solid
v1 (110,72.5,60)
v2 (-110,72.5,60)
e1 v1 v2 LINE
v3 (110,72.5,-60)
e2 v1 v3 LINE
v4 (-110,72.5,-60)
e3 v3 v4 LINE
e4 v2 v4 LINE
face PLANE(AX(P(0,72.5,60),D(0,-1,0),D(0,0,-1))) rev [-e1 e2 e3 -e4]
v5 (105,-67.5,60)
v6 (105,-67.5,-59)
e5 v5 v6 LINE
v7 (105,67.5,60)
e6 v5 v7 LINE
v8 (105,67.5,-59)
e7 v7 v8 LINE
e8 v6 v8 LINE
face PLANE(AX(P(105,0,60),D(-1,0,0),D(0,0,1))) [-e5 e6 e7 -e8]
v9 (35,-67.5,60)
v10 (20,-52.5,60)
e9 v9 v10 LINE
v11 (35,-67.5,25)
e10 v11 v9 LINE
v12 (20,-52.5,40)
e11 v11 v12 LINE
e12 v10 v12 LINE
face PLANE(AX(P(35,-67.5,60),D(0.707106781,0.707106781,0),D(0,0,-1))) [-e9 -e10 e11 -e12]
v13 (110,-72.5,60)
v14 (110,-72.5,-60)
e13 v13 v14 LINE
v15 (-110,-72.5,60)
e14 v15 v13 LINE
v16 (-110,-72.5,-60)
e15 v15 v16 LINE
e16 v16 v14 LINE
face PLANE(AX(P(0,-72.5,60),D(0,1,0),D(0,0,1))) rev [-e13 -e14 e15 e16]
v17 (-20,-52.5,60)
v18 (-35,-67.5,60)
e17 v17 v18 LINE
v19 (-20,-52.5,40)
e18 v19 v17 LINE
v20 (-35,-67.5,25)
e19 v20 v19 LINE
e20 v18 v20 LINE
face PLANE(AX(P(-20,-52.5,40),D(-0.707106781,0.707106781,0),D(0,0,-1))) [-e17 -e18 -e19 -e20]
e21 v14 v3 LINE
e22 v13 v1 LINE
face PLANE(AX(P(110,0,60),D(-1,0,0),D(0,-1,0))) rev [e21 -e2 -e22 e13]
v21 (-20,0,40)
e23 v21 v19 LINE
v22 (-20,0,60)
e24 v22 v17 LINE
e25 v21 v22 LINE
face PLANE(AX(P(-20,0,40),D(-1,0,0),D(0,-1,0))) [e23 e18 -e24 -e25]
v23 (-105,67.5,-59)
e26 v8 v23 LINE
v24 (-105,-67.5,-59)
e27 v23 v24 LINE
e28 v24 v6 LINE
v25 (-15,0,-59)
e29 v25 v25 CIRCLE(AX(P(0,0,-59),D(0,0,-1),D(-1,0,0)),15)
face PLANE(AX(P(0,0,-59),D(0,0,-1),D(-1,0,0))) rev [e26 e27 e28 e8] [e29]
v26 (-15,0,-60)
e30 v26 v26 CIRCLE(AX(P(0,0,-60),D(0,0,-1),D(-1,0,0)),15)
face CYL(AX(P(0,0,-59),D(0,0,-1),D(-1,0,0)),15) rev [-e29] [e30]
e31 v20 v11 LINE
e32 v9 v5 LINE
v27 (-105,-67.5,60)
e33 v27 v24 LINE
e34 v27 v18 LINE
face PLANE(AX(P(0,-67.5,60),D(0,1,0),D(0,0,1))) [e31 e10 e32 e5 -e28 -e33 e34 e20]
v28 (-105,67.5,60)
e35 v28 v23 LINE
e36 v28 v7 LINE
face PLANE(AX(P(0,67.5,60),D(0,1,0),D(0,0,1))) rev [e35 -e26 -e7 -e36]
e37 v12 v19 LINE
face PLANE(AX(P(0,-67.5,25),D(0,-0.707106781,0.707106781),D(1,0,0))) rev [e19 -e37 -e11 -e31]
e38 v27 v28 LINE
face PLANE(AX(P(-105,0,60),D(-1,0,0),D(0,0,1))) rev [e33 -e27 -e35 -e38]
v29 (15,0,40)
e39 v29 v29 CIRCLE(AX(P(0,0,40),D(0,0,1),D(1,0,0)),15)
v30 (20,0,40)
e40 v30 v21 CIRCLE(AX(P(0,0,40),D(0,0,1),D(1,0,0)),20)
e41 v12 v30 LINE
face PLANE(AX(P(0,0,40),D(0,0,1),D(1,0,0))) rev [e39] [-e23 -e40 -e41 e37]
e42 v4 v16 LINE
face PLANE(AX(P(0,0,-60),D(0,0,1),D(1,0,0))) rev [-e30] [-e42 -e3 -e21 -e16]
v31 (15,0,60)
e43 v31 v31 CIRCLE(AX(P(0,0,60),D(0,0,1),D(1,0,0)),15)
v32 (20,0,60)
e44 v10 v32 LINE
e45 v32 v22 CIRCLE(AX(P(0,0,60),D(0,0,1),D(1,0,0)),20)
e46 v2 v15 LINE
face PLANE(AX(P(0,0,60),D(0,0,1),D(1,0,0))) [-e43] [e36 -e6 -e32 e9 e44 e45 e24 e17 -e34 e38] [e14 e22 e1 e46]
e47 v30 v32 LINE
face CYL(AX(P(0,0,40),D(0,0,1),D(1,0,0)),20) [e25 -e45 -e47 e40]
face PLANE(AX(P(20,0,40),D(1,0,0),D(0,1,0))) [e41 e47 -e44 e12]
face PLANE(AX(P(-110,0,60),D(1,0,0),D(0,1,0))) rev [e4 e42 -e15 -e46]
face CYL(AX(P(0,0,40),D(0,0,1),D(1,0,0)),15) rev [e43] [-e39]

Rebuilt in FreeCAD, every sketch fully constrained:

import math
import FreeCAD as App
import Part
import Sketcher
Q = App.Units.Quantity


def edges_at(feature, points):
    """Names of the edges that pass closest to the given points."""
    edges = feature.Shape.Edges
    near = lambda p: min(range(len(edges)), key=lambda i: edges[i].distToShape(Part.Vertex(*p))[0])
    return sorted({f"Edge{near(p) + 1}" for p in points})


def add_polygon(sketch, points):
    """Adds a closed chain of lines whose ends are joined by coincident constraints."""
    first, n = sketch.GeometryCount, len(points)
    for a, b in zip(points, points[1:] + points[:1]):
        sketch.addGeometry(Part.LineSegment(App.Vector(*a, 0), App.Vector(*b, 0)), False)
    for i in range(n):
        sketch.addConstraint(Sketcher.Constraint("Coincident", first + i, 2, first + (i + 1) % n, 1))

doc = App.newDocument("Part")
params = doc.addObject("Spreadsheet::Sheet", "Params")
for row, (alias, value) in enumerate([
    ("sketch1_width", "220 mm"),
    ("sketch1_width2", "210 mm"),
    ("sketch1_height", "145 mm"),
    ("sketch1_height2", "135 mm"),
    ("pad1_length", "120 mm"),
    ("sketch2_diameter", "30 mm"),
    ("sketch2_width", "210 mm"),
    ("sketch2_height", "135 mm"),
    ("pad2_length", "1 mm"),
    ("sketch3_diameter", "30 mm"),
    ("sketch3_radius", "20 mm"),
    ("sketch3_height", "67.5 mm"),
    ("pad3_length", "20 mm"),
    ("chamfer_size", "15 mm"),
], start=1):
    params.set(f"A{row}", alias)
    params.set(f"B{row}", "=" + value)
    params.setAlias(f"B{row}", alias)

body = doc.addObject("PartDesign::Body", "Body")

sketch1 = body.newObject("Sketcher::SketchObject", "Sketch")
sketch1.AttachmentSupport = (doc.getObject("XY_Plane"), [""])
sketch1.MapMode = "FlatFace"
add_polygon(sketch1, [(-110, 72), (-110, -72), (110, -72), (110, 72)])
add_polygon(sketch1, [(105, -68), (-105, -68), (-105, 68), (105, 68)])
sketch1.addConstraint([
    Sketcher.Constraint("Vertical", 0),
    Sketcher.Constraint("Horizontal", 1),
    Sketcher.Constraint("Vertical", 2),
    Sketcher.Constraint("Horizontal", 3),
    Sketcher.Constraint("Horizontal", 4),
    Sketcher.Constraint("Vertical", 5),
    Sketcher.Constraint("Horizontal", 6),
    Sketcher.Constraint("Vertical", 7),
    Sketcher.Constraint("Symmetric", 0, 2, 2, 2, -1, 1),
    Sketcher.Constraint("Symmetric", 4, 2, 6, 2, -1, 1),
    Sketcher.Constraint("DistanceX", 1, 1, 1, 2, Q("220 mm")),
    Sketcher.Constraint("DistanceX", 4, 2, 4, 1, Q("210 mm")),
    Sketcher.Constraint("DistanceY", 0, 2, 0, 1, Q("145 mm")),
    Sketcher.Constraint("DistanceY", 5, 1, 5, 2, Q("135 mm")),
])
sketch1.setExpression("Constraints[18]", "Params.sketch1_width")
sketch1.setExpression("Constraints[19]", "Params.sketch1_width2")
sketch1.setExpression("Constraints[20]", "Params.sketch1_height")
sketch1.setExpression("Constraints[21]", "Params.sketch1_height2")
pad1 = body.newObject("PartDesign::Pad", "Pad")
pad1.Profile = sketch1
pad1.setExpression("Length", "Params.pad1_length")
pad1.Midplane = True

sketch2 = body.newObject("Sketcher::SketchObject", "Sketch001")
sketch2.AttachmentSupport = (doc.getObject("XY_Plane"), [""])
sketch2.MapMode = "FlatFace"
sketch2.AttachmentOffset = App.Placement(App.Vector(0, 0, -60), App.Rotation())
add_polygon(sketch2, [(105, 68), (105, -68), (-105, -68), (-105, 68)])
sketch2.addGeometry(Part.Circle(App.Vector(0, 0, 0), App.Vector(0, 0, 1), 15), False)
sketch2.addConstraint([
    Sketcher.Constraint("Vertical", 0),
    Sketcher.Constraint("Horizontal", 1),
    Sketcher.Constraint("Vertical", 2),
    Sketcher.Constraint("Horizontal", 3),
    Sketcher.Constraint("Coincident", 4, 3, -1, 1),
    Sketcher.Constraint("Symmetric", 0, 2, 2, 2, -1, 1),
    Sketcher.Constraint("Diameter", 4, Q("30 mm")),
    Sketcher.Constraint("DistanceX", 1, 2, 1, 1, Q("210 mm")),
    Sketcher.Constraint("DistanceY", 0, 2, 0, 1, Q("135 mm")),
])
sketch2.setExpression("Constraints[10]", "Params.sketch2_diameter")
sketch2.setExpression("Constraints[11]", "Params.sketch2_width")
sketch2.setExpression("Constraints[12]", "Params.sketch2_height")
pad2 = body.newObject("PartDesign::Pad", "Pad001")
pad2.Profile = sketch2
pad2.setExpression("Length", "Params.pad2_length")

sketch3 = body.newObject("Sketcher::SketchObject", "Sketch002")
sketch3.AttachmentSupport = (doc.getObject("XY_Plane"), [""])
sketch3.MapMode = "FlatFace"
sketch3.AttachmentOffset = App.Placement(App.Vector(0, 0, 40), App.Rotation())
sketch3.addGeometry([
    Part.LineSegment(App.Vector(-20, 0, 0), App.Vector(-20, -68, 0)),
    Part.LineSegment(App.Vector(-20, -68, 0), App.Vector(20, -68, 0)),
    Part.LineSegment(App.Vector(20, -68, 0), App.Vector(20, 0, 0)),
    Part.ArcOfCircle(Part.Circle(App.Vector(0, 0, 0), App.Vector(0, 0, 1), 20), math.radians(0), math.radians(180)),
    Part.Circle(App.Vector(0, 0, 0), App.Vector(0, 0, 1), 15),
], False)
sketch3.addConstraint([
    Sketcher.Constraint("Coincident", 0, 2, 1, 1),
    Sketcher.Constraint("Coincident", 1, 2, 2, 1),
    Sketcher.Constraint("Tangent", 2, 2, 3, 1),
    Sketcher.Constraint("Tangent", 3, 2, 0, 1),
    Sketcher.Constraint("Vertical", 0),
    Sketcher.Constraint("Horizontal", 1),
    Sketcher.Constraint("Vertical", 2),
    Sketcher.Constraint("Coincident", 3, 3, -1, 1),
    Sketcher.Constraint("Coincident", 4, 3, -1, 1),
    Sketcher.Constraint("Diameter", 4, Q("30 mm")),
    Sketcher.Constraint("Radius", 3, Q("20 mm")),
    Sketcher.Constraint("DistanceY", 0, 2, 0, 1, Q("67.5 mm")),
])
sketch3.setExpression("Constraints[9]", "Params.sketch3_diameter")
sketch3.setExpression("Constraints[10]", "Params.sketch3_radius")
sketch3.setExpression("Constraints[11]", "Params.sketch3_height")
pad3 = body.newObject("PartDesign::Pad", "Pad002")
pad3.Profile = sketch3
pad3.setExpression("Length", "Params.pad3_length")
doc.recompute()

chamfer = body.newObject("PartDesign::Chamfer", "Chamfer")
chamfer.Base = (pad3, edges_at(pad3, [(0, -67.5, 40), (20, -67.5, 50), (-20, -67.5, 50)]))
chamfer.setExpression("Size", "Params.chamfer_size")

doc.recompute()
